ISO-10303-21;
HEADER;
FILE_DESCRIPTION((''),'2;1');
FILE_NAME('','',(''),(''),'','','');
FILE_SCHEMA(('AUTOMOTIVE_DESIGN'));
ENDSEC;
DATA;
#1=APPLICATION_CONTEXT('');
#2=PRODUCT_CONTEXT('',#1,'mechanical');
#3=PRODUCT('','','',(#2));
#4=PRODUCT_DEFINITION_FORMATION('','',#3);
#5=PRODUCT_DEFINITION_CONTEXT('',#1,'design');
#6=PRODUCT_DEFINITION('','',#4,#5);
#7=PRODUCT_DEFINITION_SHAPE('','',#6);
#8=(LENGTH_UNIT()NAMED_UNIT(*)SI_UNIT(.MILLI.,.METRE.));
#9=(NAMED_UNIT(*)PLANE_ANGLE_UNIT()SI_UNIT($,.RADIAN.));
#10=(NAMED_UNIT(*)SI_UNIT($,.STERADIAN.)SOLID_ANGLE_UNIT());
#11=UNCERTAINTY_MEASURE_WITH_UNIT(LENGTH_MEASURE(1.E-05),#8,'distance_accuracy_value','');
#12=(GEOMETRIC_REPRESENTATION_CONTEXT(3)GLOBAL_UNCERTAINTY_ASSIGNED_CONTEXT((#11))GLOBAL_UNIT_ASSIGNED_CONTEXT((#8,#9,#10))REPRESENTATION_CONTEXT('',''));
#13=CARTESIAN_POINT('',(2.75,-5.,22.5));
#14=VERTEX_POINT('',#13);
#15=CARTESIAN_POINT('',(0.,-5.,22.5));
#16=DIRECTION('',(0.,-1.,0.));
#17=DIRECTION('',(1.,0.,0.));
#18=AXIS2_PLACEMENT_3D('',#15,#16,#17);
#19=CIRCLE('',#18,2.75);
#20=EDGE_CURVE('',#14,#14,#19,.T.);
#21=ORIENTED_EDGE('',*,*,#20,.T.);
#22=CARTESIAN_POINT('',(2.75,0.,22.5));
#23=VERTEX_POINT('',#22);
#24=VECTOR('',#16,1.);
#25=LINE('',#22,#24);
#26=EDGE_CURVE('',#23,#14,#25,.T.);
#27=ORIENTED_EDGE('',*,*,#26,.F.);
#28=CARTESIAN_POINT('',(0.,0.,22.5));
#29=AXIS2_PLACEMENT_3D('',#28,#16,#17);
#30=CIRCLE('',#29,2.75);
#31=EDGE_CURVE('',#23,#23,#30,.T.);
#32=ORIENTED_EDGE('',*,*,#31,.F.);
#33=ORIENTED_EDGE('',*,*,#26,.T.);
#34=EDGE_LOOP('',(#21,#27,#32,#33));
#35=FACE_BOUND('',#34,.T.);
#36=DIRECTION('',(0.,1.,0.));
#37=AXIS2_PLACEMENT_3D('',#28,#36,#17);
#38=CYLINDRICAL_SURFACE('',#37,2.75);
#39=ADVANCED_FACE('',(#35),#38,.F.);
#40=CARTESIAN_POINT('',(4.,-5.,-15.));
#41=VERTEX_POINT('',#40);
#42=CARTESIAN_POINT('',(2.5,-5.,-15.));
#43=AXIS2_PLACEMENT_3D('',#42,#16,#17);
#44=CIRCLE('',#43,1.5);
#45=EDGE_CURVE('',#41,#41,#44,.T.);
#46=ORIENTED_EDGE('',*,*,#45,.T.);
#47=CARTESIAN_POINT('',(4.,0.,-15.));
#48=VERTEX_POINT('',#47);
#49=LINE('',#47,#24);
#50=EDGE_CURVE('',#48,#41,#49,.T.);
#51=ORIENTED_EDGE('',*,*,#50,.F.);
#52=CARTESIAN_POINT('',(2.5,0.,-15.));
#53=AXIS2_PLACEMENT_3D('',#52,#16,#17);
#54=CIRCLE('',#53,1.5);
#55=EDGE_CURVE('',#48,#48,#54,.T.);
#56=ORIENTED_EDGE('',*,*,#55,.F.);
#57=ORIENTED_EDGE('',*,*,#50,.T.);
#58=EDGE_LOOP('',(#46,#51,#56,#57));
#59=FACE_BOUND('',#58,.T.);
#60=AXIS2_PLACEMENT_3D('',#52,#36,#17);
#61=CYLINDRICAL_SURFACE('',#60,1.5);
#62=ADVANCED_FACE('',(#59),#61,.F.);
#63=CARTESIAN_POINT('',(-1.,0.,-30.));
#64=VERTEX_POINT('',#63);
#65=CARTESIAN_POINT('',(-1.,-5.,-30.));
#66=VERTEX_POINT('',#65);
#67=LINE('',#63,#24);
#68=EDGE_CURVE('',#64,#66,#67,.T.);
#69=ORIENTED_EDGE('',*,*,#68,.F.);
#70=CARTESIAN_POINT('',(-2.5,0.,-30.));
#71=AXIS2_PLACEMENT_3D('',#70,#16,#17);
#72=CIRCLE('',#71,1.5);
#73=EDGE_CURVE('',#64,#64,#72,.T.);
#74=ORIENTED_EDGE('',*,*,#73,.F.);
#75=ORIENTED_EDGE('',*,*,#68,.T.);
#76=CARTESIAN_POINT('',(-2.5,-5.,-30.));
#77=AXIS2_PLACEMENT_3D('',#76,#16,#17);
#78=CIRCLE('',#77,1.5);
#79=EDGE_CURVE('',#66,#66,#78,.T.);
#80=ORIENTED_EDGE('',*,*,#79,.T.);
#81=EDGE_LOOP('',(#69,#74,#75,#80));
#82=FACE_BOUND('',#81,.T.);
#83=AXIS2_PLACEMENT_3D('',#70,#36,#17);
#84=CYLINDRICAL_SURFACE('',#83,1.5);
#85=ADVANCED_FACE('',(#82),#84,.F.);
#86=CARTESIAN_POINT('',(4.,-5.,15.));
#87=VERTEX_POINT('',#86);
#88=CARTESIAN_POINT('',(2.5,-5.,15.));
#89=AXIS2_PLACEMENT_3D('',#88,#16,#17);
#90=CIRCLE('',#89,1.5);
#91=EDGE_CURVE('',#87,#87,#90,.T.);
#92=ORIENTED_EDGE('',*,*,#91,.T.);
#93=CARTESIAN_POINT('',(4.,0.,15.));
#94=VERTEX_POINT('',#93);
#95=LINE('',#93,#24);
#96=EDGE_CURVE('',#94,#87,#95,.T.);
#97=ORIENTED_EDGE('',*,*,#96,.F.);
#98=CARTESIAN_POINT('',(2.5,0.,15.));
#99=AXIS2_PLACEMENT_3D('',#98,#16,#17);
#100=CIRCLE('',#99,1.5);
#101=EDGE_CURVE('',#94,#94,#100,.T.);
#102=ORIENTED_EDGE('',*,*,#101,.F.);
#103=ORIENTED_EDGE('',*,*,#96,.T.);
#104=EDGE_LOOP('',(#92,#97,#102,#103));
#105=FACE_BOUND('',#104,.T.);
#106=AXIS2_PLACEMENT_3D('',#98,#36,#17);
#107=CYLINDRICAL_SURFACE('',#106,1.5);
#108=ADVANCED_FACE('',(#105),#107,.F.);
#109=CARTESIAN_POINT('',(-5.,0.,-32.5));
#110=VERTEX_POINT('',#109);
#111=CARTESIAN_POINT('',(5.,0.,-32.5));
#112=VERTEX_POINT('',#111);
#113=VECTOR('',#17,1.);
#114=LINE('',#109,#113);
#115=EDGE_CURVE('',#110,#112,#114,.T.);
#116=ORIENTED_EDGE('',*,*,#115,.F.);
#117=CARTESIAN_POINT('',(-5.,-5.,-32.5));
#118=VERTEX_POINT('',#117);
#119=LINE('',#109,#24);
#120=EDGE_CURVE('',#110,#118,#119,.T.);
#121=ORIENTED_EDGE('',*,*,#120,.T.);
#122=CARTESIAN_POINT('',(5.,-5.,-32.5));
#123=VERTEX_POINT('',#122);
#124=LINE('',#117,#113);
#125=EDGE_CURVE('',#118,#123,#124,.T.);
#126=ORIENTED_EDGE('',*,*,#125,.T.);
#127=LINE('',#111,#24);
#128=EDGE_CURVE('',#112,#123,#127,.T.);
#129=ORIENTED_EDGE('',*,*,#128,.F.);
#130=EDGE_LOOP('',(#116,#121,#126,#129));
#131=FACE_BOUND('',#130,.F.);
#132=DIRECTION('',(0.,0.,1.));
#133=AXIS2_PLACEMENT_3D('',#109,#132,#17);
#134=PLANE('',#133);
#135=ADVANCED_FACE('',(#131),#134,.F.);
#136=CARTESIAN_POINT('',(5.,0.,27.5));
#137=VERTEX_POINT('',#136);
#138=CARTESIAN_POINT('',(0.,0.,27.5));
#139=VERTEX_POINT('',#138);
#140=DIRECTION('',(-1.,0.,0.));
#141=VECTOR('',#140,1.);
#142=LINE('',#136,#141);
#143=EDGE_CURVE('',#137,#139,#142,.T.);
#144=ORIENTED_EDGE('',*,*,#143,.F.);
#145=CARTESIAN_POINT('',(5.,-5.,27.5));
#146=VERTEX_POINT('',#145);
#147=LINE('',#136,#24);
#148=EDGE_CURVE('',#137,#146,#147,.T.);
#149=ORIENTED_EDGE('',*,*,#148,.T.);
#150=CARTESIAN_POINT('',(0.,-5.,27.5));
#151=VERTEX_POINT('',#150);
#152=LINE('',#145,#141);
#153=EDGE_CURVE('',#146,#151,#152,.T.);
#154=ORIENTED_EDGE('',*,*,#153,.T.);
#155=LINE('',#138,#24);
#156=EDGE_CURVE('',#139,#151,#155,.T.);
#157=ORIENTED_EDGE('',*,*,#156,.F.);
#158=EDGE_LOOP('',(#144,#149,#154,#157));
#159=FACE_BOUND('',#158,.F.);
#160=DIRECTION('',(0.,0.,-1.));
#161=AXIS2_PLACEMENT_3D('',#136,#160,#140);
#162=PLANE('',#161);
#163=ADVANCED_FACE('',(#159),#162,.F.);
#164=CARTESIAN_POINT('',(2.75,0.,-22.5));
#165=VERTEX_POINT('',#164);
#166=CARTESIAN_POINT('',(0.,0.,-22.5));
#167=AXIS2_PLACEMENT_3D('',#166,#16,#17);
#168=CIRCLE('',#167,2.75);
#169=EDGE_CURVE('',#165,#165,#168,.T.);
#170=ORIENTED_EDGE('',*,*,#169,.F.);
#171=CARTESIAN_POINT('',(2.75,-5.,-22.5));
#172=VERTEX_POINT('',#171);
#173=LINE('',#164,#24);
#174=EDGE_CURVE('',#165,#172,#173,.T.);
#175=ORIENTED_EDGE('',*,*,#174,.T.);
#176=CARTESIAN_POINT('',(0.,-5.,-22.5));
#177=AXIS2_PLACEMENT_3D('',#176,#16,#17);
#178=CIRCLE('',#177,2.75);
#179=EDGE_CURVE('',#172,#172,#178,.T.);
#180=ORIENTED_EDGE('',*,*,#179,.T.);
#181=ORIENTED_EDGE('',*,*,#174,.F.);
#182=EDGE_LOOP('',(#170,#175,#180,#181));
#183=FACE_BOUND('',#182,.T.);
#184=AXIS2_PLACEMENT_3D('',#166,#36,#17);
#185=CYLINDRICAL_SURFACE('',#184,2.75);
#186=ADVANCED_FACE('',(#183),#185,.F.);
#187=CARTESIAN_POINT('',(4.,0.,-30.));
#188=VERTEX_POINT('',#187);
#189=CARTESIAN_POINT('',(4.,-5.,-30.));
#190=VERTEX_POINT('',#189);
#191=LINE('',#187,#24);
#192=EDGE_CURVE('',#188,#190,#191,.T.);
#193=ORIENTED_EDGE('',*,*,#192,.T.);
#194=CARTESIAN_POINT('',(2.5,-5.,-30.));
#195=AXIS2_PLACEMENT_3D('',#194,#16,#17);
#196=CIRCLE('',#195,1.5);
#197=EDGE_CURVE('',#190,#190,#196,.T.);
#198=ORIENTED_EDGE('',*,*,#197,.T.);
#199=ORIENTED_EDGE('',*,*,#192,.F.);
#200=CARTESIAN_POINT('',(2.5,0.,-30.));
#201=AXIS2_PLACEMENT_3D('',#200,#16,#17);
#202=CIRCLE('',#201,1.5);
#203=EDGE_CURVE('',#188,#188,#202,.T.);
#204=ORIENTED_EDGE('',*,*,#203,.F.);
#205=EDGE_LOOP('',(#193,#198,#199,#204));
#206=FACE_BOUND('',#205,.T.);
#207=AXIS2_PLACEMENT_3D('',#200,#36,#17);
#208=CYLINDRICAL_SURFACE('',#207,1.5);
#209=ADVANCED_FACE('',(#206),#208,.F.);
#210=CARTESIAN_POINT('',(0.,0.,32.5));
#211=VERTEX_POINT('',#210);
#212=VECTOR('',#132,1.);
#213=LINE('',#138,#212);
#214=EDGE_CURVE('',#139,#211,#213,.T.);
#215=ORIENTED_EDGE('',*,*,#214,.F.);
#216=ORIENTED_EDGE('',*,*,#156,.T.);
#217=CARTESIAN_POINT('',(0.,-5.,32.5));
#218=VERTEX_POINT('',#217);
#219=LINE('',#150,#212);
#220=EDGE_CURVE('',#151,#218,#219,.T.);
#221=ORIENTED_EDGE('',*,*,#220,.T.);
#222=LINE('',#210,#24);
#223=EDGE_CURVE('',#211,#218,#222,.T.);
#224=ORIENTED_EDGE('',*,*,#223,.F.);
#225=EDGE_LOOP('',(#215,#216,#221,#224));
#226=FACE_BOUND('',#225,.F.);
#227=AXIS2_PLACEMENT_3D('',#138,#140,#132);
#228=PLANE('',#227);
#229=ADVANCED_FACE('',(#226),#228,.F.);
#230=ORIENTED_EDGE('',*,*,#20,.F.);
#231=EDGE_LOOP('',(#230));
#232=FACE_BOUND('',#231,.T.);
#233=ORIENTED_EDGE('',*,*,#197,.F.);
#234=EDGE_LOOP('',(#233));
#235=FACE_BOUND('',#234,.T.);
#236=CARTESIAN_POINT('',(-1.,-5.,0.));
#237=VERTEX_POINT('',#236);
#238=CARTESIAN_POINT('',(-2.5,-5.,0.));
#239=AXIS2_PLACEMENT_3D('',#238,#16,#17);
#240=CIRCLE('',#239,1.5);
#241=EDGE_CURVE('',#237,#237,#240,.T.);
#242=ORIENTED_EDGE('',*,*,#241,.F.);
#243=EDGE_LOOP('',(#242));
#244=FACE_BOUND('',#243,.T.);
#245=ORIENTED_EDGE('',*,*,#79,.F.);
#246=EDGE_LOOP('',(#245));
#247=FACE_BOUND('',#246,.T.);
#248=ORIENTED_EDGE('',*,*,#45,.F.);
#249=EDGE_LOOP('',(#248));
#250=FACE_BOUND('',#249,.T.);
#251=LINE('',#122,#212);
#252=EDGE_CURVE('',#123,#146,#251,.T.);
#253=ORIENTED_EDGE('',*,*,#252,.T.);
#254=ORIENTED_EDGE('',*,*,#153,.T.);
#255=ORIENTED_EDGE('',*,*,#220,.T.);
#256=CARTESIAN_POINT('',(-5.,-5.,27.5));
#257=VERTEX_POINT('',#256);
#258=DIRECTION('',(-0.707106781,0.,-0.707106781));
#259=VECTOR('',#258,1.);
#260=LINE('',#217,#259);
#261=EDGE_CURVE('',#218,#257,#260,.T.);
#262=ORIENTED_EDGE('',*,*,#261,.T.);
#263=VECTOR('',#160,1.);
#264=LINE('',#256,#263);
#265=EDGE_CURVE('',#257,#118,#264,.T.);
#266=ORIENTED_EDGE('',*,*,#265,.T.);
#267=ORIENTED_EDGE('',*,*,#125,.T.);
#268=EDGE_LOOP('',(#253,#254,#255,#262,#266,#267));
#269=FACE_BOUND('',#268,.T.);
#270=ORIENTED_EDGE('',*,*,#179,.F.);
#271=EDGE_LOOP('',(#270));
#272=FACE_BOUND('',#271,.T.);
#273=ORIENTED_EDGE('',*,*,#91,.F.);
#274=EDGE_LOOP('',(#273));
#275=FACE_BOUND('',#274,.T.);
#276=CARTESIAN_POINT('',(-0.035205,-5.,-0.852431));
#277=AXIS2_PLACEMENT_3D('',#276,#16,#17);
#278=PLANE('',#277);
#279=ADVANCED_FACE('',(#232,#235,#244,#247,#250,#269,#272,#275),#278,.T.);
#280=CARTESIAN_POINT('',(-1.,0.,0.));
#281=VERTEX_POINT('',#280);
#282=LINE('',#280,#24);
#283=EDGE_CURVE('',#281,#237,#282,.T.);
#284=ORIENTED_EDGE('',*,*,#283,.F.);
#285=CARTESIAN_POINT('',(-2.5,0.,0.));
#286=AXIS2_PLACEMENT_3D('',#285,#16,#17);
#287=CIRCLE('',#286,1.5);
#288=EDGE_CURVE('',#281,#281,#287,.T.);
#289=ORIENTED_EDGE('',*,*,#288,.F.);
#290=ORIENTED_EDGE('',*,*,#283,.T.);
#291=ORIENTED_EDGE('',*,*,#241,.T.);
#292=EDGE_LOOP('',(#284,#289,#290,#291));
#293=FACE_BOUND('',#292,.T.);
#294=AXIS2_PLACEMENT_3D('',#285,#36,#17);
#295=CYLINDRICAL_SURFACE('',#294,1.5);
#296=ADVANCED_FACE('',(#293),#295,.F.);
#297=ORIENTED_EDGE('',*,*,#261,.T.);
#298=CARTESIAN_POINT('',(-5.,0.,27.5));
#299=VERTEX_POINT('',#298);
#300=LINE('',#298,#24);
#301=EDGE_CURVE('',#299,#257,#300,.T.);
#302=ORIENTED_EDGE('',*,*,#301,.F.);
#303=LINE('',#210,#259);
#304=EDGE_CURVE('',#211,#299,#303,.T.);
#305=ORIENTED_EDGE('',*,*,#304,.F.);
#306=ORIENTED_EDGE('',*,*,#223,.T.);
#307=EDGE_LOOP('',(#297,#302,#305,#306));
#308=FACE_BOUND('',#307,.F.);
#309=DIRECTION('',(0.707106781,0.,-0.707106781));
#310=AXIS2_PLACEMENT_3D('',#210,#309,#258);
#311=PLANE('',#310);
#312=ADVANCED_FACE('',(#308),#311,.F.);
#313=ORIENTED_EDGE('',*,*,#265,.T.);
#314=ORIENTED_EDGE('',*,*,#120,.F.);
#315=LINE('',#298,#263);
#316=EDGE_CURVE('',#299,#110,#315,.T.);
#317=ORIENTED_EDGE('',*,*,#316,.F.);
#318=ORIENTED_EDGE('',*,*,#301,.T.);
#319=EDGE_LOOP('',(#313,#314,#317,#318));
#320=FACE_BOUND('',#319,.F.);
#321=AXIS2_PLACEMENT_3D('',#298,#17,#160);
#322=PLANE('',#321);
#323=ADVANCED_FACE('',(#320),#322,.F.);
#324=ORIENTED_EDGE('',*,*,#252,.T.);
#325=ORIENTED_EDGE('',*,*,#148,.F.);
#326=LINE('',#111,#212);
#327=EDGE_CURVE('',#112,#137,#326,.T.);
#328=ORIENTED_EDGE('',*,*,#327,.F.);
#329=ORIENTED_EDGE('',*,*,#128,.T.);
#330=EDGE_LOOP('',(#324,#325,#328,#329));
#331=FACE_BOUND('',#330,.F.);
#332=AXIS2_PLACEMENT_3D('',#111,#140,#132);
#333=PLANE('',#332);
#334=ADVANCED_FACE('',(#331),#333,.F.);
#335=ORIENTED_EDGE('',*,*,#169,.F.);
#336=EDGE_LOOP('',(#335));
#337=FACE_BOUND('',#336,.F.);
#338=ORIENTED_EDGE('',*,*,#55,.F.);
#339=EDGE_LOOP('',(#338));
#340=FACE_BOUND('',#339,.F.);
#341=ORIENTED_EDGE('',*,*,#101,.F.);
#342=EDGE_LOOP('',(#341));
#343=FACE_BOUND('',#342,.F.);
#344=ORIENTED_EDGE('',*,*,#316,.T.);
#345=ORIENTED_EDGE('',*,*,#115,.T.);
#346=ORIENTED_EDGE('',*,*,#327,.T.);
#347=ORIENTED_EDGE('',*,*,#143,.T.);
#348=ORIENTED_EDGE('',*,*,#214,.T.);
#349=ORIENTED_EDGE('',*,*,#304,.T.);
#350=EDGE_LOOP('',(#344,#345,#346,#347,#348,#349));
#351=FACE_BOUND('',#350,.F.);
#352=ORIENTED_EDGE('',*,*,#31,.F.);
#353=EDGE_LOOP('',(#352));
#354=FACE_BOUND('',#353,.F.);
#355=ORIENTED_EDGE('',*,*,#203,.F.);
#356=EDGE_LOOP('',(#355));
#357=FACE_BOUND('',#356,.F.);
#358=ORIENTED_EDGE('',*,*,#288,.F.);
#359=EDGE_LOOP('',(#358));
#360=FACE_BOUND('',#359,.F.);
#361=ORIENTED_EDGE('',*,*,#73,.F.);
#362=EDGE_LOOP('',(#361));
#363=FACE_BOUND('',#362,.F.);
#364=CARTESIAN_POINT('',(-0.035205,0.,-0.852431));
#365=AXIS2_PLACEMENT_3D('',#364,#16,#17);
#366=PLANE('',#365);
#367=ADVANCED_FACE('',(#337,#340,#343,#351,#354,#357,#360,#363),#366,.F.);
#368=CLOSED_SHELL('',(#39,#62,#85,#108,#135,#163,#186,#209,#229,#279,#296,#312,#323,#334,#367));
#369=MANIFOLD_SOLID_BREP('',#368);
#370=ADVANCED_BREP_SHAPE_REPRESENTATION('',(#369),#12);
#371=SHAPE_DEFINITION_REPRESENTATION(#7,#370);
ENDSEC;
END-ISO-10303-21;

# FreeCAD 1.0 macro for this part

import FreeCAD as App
import Part
import Sketcher
Q = App.Units.Quantity

doc = App.newDocument("Part")
params = doc.addObject("Spreadsheet::Sheet", "Params")
for row, (alias, value) in enumerate([
    ("sketch1_diameter", "3 mm"),
    ("sketch1_diameter2", "5.5 mm"),
    ("sketch1_width", "10 mm"),
    ("sketch1_height", "60 mm"),
    ("pad1_length", "5 mm"),
], start=1):
    params.set(f"A{row}", alias)
    params.set(f"B{row}", "=" + value)
    params.setAlias(f"B{row}", alias)

body = doc.addObject("PartDesign::Body", "Body")

# Sketch on XZ plane
sketch1 = doc.addObject("Sketcher::SketchObject", "Sketch")
body.addObject(sketch1)
sketch1.AttachmentSupport = (doc.XZ_Plane, [""])
sketch1.MapMode = "FlatFace"
sketch1.addGeometry([
    Part.LineSegment(App.Vector(-5, 27.5, 0), App.Vector(-5, -32.5, 0)),  # 0
    Part.LineSegment(App.Vector(-5, -32.5, 0), App.Vector(5, -32.5, 0)),  # 1
    Part.LineSegment(App.Vector(5, -32.5, 0), App.Vector(5, 27.5, 0)),  # 2
    Part.LineSegment(App.Vector(5, 27.5, 0), App.Vector(0, 27.5, 0)),  # 3
    Part.LineSegment(App.Vector(0, 27.5, 0), App.Vector(0, 32.5, 0)),  # 4
    Part.LineSegment(App.Vector(0, 32.5, 0), App.Vector(-5, 27.5, 0)),  # 5
    Part.Circle(App.Vector(-2.5, -30, 0), App.Vector(0, 0, 1), 1.5),  # 6
    Part.Circle(App.Vector(0, -22.5, 0), App.Vector(0, 0, 1), 2.8),  # 7
    Part.Circle(App.Vector(2.5, -30, 0), App.Vector(0, 0, 1), 1.5),  # 8
    Part.Circle(App.Vector(2.5, -15, 0), App.Vector(0, 0, 1), 1.5),  # 9
    Part.Circle(App.Vector(-2.5, 0, 0), App.Vector(0, 0, 1), 1.5),  # 10
    Part.Circle(App.Vector(0, 22.5, 0), App.Vector(0, 0, 1), 2.8),  # 11
    Part.Circle(App.Vector(2.5, 15, 0), App.Vector(0, 0, 1), 1.5),  # 12
], False)
sketch1.addConstraint([
    Sketcher.Constraint("Coincident", 0, 2, 1, 1),
    Sketcher.Constraint("Coincident", 1, 2, 2, 1),
    Sketcher.Constraint("Coincident", 2, 2, 3, 1),
    Sketcher.Constraint("Coincident", 3, 2, 4, 1),
    Sketcher.Constraint("Coincident", 4, 2, 5, 1),
    Sketcher.Constraint("Coincident", 5, 2, 0, 1),
    Sketcher.Constraint("Vertical", 0),
    Sketcher.Constraint("Horizontal", 1),
    Sketcher.Constraint("Vertical", 2),
    Sketcher.Constraint("Horizontal", 3),
    Sketcher.Constraint("Vertical", 4),
    Sketcher.Constraint("Equal", 6, 8),
    Sketcher.Constraint("Equal", 8, 9),
    Sketcher.Constraint("Equal", 9, 10),
    Sketcher.Constraint("Equal", 7, 11),
    Sketcher.Constraint("Equal", 10, 12),
    Sketcher.Constraint("Symmetric", 7, 3, 11, 3, -1, 1),
    Sketcher.Constraint("Symmetric", 6, 3, 8, 3, -2),
    Sketcher.Constraint("Symmetric", 2, 2, 5, 2, -2),
    Sketcher.Constraint("Symmetric", 9, 3, 12, 3, -1),
    Sketcher.Constraint("PointOnObject", 7, 3, -2),
    Sketcher.Constraint("PointOnObject", 10, 3, -1),
    Sketcher.Constraint("PointOnObject", 3, 2, -2),
    Sketcher.Constraint("Vertical", 8, 3, 9, 3),
    Sketcher.Constraint("Vertical", 6, 3, 10, 3),
    Sketcher.Constraint("Equal", 3, 4),
    Sketcher.Constraint("Diameter", 6, Q("3 mm")),
    Sketcher.Constraint("Diameter", 7, Q("5.5 mm")),
    Sketcher.Constraint("DistanceX", 1, 1, 1, 2, Q("10 mm")),
    Sketcher.Constraint("DistanceY", 0, 2, 0, 1, Q("60 mm")),
    Sketcher.Constraint("DistanceY", 6, 3, -1, 1, Q("30 mm")),
    Sketcher.Constraint("DistanceY", 9, 3, -1, 1, Q("15 mm")),
    Sketcher.Constraint("DistanceX", 6, 3, 8, 3, Q("5 mm")),
    Sketcher.Constraint("DistanceY", 7, 3, 11, 3, Q("45 mm")),
    Sketcher.Constraint("DistanceY", 0, 2, 7, 3, Q("10 mm")),
])
sketch1.setExpression("Constraints[26]", "Params.sketch1_diameter")
sketch1.setExpression("Constraints[27]", "Params.sketch1_diameter2")
sketch1.setExpression("Constraints[28]", "Params.sketch1_width")
sketch1.setExpression("Constraints[29]", "Params.sketch1_height")
pad1 = doc.addObject("PartDesign::Pad", "Pad")
body.addObject(pad1)
pad1.Profile = sketch1
pad1.setExpression("Length", "Params.pad1_length")

doc.recompute()
